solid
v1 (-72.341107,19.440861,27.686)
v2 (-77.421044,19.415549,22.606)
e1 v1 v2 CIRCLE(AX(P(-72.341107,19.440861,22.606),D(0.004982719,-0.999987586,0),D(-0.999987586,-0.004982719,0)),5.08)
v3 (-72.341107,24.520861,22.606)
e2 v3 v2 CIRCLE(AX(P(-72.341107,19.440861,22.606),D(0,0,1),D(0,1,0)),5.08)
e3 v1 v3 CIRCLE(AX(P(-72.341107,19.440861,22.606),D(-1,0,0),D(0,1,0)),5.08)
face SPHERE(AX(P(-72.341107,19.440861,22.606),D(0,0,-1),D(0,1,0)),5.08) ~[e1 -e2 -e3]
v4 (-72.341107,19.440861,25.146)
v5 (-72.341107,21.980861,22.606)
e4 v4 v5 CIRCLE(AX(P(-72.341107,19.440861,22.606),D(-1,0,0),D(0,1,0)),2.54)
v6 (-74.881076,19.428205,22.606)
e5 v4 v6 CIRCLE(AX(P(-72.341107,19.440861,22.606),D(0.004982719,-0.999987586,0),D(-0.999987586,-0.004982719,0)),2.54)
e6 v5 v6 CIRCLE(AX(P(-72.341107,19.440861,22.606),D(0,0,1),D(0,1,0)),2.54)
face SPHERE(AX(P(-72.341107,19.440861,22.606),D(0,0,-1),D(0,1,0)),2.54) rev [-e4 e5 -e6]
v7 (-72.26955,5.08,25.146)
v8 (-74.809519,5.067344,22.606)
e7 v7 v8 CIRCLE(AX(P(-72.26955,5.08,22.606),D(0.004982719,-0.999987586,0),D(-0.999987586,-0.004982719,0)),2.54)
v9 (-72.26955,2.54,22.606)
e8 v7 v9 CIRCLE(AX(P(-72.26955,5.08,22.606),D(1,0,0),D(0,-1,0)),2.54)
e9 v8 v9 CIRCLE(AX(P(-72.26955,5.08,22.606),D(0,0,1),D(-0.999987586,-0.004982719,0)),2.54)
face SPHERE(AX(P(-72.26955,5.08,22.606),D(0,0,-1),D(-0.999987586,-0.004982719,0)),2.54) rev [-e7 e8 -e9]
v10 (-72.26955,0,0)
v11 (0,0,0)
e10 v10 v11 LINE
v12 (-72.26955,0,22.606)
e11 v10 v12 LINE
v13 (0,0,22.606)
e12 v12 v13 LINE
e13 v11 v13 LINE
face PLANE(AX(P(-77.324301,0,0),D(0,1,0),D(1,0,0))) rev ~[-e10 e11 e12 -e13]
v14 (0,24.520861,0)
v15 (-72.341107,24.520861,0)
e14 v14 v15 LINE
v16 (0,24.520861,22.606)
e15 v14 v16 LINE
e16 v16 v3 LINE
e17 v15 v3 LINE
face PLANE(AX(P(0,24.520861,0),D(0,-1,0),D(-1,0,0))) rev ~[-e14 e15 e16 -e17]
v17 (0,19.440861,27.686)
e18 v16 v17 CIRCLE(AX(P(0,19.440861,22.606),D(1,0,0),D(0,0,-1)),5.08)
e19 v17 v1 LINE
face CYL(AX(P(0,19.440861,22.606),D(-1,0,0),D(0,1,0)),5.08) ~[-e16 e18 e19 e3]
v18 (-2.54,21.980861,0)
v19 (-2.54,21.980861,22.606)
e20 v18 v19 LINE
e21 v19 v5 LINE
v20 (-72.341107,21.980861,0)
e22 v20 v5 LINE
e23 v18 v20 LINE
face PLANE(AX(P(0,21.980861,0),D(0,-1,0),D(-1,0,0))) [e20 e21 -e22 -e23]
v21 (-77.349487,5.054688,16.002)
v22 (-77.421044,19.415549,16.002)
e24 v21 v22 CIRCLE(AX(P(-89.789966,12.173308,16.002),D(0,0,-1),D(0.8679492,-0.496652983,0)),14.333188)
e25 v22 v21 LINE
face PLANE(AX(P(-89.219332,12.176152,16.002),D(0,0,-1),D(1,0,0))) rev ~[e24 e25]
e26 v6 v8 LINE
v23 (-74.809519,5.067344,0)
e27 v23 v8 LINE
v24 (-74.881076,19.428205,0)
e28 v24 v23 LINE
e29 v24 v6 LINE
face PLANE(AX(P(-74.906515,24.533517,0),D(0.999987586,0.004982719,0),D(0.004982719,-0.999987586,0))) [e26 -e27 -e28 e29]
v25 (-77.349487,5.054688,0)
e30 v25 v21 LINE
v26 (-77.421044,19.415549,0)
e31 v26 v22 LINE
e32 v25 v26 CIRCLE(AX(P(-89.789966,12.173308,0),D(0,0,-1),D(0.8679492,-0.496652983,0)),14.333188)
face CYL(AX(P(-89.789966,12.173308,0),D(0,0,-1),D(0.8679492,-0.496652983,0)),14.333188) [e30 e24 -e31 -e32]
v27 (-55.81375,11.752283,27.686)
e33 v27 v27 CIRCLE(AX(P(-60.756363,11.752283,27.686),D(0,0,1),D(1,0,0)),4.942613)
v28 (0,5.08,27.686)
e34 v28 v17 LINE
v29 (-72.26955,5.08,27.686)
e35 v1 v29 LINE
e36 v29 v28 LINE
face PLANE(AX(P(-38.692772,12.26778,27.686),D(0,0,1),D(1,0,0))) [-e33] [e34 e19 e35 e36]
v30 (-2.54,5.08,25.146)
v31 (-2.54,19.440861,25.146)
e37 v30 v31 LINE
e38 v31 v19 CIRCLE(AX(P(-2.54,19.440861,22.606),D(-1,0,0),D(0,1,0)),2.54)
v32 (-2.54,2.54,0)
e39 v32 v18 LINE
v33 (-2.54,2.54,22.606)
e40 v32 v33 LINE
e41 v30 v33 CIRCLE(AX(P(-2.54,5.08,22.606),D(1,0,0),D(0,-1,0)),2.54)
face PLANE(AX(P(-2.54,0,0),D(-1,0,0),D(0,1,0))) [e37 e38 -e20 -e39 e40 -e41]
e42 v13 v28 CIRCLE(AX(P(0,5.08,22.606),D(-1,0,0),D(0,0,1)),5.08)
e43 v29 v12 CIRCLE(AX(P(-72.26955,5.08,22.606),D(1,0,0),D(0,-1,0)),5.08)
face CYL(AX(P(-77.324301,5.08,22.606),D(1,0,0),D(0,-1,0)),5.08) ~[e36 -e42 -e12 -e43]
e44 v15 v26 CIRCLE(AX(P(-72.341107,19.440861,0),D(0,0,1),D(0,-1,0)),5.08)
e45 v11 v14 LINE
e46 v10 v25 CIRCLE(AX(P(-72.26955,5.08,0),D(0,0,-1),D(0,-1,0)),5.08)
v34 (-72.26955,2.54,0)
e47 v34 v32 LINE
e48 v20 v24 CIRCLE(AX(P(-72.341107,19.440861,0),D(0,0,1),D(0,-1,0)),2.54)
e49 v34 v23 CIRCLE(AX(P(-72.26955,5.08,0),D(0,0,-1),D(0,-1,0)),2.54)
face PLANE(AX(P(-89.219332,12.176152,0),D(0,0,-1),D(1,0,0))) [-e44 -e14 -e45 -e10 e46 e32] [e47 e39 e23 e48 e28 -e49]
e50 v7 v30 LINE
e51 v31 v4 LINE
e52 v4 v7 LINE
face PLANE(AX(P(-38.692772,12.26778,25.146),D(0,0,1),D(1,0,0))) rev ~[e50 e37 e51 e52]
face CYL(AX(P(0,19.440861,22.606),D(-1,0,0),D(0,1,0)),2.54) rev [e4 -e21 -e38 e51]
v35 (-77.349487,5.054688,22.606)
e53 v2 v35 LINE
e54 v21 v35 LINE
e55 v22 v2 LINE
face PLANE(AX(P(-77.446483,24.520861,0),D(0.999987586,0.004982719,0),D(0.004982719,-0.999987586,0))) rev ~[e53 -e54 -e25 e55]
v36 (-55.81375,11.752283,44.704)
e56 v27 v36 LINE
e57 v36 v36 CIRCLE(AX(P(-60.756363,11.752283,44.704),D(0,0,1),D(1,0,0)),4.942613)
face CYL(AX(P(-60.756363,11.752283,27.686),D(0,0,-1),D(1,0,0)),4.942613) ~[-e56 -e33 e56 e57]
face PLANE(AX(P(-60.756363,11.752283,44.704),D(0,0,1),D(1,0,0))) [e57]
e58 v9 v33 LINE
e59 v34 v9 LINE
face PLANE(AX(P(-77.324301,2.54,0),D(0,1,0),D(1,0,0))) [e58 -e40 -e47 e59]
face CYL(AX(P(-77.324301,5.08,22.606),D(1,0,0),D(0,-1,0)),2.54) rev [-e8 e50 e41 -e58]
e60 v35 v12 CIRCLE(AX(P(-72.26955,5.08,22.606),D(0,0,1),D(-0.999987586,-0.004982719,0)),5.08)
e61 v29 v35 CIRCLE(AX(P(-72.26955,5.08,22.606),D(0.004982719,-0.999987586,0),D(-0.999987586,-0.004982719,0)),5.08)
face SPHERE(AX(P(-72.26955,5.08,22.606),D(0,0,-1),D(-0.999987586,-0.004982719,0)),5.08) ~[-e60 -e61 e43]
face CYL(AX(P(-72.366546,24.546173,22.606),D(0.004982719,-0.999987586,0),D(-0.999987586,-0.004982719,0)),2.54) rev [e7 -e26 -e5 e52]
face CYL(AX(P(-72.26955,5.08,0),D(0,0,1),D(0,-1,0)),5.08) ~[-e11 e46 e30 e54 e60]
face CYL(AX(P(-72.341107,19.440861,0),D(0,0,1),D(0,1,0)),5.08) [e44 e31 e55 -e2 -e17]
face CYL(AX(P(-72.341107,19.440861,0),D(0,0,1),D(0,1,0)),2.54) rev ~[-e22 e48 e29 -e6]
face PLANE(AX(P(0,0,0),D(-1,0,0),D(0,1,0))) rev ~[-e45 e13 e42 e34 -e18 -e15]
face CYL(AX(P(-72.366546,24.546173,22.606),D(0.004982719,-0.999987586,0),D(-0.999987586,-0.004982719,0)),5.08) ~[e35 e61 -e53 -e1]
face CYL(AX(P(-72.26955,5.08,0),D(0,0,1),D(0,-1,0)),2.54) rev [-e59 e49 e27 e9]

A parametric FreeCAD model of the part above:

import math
import FreeCAD as App
import Part
import Sketcher

V = App.Vector
Q = App.Units.Quantity


def edges_at(feature, points):
    """Names of the edges that pass closest to the given points."""
    edges = feature.Shape.Edges
    near = lambda p: min(range(len(edges)), key=lambda i: edges[i].distToShape(Part.Vertex(*p))[0])
    return sorted({f"Edge{near(p) + 1}" for p in points})


def faces_at(feature, points):
    """Names of the faces that lie closest to the given points."""
    faces = feature.Shape.Faces
    near = lambda p: min(range(len(faces)), key=lambda i: faces[i].distToShape(Part.Vertex(*p))[0])
    return sorted({f"Face{near(p) + 1}" for p in points})


def add_polygon(sketch, points):
    """Adds a closed chain of lines whose ends are joined by coincident constraints."""
    first, n = sketch.GeometryCount, len(points)
    for a, b in zip(points, points[1:] + points[:1]):
        sketch.addGeometry(Part.LineSegment(App.Vector(*a, 0), App.Vector(*b, 0)), False)
    for i in range(n):
        sketch.addConstraint(Sketcher.Constraint("Coincident", first + i, 2, first + (i + 1) % n, 1))

doc = App.newDocument("Part")
body = doc.addObject("PartDesign::Body", "Body")

# Sketch on XY plane
sketch1 = doc.addObject("Sketcher::SketchObject", "Sketch")
body.addObject(sketch1)
sketch1.AttachmentSupport = (doc.XY_Plane, [""])
sketch1.MapMode = "FlatFace"
add_polygon(sketch1, [(-77, 0), (0, 0), (0, 25), (-77, 25)])  # lines 0-3
sketch1.addConstraint([
    Sketcher.Constraint("Horizontal", 0),
    Sketcher.Constraint("Vertical", 1),
    Sketcher.Constraint("Horizontal", 2),
    Sketcher.Constraint("Coincident", 0, 2, -1, 1),
    Sketcher.Constraint("DistanceX", 0, 1, 0, 2, Q("77.324301 mm")),
    Sketcher.Constraint("DistanceY", 1, 1, 1, 2, Q("24.520861 mm")),
    Sketcher.Constraint("DistanceX", 2, 2, 2, 1, Q("77.446483 mm")),
])
pad1 = doc.addObject("PartDesign::Pad", "Pad")
body.addObject(pad1)
pad1.Profile = sketch1
pad1.Length = Q("1.09 in")
doc.recompute()

fillet = doc.addObject("PartDesign::Fillet", "Fillet")
body.addObject(fillet)
fillet.Base = (pad1, edges_at(pad1, [
    (-77.446, 24.521, 13.843),
    (-38.723, 24.521, 27.686),
    (-77.385, 12.26, 27.686),
    (-38.662, 0, 27.686),
    (-77.324, 0, 13.843),
]))
fillet.Radius = Q("0.2 in")
doc.recompute()

thickness = doc.addObject("PartDesign::Thickness", "Thickness")
body.addObject(thickness)
thickness.Base = (fillet, faces_at(fillet, [(-38.711, 12.26, 0)]))
thickness.Value = Q("0.1 in")
thickness.Reversed = True
thickness.Join = "Arc"

# Sketch on XY plane
sketch2 = doc.addObject("Sketcher::SketchObject", "Sketch001")
body.addObject(sketch2)
sketch2.AttachmentSupport = (doc.XY_Plane, [""])
sketch2.MapMode = "FlatFace"
sketch2.AttachmentOffset = App.Placement(V(0, 0, 1.09 * 25.4), App.Rotation())
sketch2.addGeometry(Part.Circle(V(-60.8, 11.8, 0), V(0, 0, 1), 4.9), False)
sketch2.addConstraint([
    Sketcher.Constraint("Diameter", 0, Q("9.885226 mm")),
    Sketcher.Constraint("DistanceX", 0, 3, -1, 1, Q("60.756363 mm")),
    Sketcher.Constraint("DistanceY", -1, 1, 0, 3, Q("11.752283 mm")),
])
pad2 = doc.addObject("PartDesign::Pad", "Pad001")
body.addObject(pad2)
pad2.Profile = sketch2
pad2.Length = Q("0.67 in")

# Sketch on XY plane
sketch3 = doc.addObject("Sketcher::SketchObject", "Sketch002")
body.addObject(sketch3)
sketch3.AttachmentSupport = (doc.XY_Plane, [""])
sketch3.MapMode = "FlatFace"
sketch3.addGeometry([
    Part.LineSegment(V(-77, 19, 0), V(-77, 5, 0)),
    Part.ArcOfCircle(Part.Circle(V(-90, 12, 0), V(0, 0, 1), 14), math.radians(30), math.radians(330)),
], False)
sketch3.addConstraint([
    Sketcher.Constraint("Coincident", 0, 1, 1, 1),
    Sketcher.Constraint("Coincident", 1, 2, 0, 2),
    Sketcher.Constraint("Radius", 1, Q("14.333188 mm")),
    Sketcher.Constraint("Distance", 0, Q("14.361039 mm")),
    Sketcher.Constraint("DistanceY", -1, 1, 1, 3, Q("12.173308 mm")),
    Sketcher.Constraint("DistanceY", -1, 1, 0, 1, Q("19.415549 mm")),
    Sketcher.Constraint("DistanceX", 1, 3, -1, 1, Q("89.789966 mm")),
])
pad3 = doc.addObject("PartDesign::Pad", "Pad002")
body.addObject(pad3)
pad3.Profile = sketch3
pad3.Length = Q("0.63 in")

doc.recompute()
